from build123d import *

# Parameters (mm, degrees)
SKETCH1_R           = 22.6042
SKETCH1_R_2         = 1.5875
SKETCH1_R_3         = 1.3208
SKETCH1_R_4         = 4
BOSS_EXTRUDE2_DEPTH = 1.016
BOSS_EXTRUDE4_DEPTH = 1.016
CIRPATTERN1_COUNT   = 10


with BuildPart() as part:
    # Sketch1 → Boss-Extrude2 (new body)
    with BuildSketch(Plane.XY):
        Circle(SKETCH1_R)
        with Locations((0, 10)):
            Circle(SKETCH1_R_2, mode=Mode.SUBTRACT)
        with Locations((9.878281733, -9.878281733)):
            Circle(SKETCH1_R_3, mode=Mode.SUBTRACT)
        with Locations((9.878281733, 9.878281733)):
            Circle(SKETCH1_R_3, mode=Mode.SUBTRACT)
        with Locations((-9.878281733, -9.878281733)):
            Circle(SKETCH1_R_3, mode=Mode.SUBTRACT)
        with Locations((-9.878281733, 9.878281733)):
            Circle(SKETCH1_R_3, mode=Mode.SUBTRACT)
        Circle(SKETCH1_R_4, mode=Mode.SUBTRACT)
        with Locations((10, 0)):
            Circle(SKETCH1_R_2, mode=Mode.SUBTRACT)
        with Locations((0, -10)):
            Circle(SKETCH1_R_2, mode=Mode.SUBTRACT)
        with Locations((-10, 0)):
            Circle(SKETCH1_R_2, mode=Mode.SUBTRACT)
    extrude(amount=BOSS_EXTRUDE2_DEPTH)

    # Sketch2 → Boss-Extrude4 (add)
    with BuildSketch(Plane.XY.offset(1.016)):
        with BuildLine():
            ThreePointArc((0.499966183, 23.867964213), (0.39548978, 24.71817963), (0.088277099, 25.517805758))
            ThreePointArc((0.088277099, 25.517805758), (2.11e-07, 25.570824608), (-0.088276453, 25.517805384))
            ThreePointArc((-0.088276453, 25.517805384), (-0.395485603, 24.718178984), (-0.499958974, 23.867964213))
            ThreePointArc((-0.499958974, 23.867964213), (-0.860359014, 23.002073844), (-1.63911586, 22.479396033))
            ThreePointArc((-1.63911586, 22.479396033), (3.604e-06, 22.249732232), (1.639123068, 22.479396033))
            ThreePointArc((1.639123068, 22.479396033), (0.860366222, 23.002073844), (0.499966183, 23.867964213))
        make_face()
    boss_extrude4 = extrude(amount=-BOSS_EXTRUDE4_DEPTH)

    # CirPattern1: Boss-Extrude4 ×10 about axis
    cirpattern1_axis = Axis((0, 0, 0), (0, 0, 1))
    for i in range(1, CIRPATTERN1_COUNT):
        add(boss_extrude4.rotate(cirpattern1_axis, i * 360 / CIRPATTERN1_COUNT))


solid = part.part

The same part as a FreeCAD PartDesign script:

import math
import FreeCAD as App
import Part
import Sketcher

V = App.Vector
Q = App.Units.Quantity

doc = App.newDocument("Part")
body = doc.addObject("PartDesign::Body", "Body")

# Sketch on XY plane
sketch1 = body.newObject("Sketcher::SketchObject", "Sketch")
sketch1.AttachmentSupport = (doc.getObject("XY_Plane"), [""])
sketch1.MapMode = "FlatFace"
sketch1.addGeometry(Part.Circle(V(0, 0, 0), V(0, 0, 1), 22.6), False)
sketch1.addGeometry(Part.Circle(V(-9.9, -9.9, 0), V(0, 0, 1), 1.3), False)
sketch1.addGeometry(Part.Circle(V(0, -10, 0), V(0, 0, 1), 1.6), False)
sketch1.addGeometry(Part.Circle(V(-10, 0, 0), V(0, 0, 1), 1.6), False)
sketch1.addGeometry(Part.Circle(V(0, 0, 0), V(0, 0, 1), 4), False)
sketch1.addGeometry(Part.Circle(V(9.9, -9.9, 0), V(0, 0, 1), 1.3), False)
sketch1.addGeometry(Part.Circle(V(10, 0, 0), V(0, 0, 1), 1.6), False)
sketch1.addGeometry(Part.Circle(V(-9.9, 9.9, 0), V(0, 0, 1), 1.3), False)
sketch1.addGeometry(Part.Circle(V(0, 10, 0), V(0, 0, 1), 1.6), False)
sketch1.addGeometry(Part.Circle(V(9.9, 9.9, 0), V(0, 0, 1), 1.3), False)
sketch1.addConstraint(Sketcher.Constraint("Coincident", 0, 3, -1, 1))
sketch1.addConstraint(Sketcher.Constraint("Coincident", 4, 3, -1, 1))
sketch1.addConstraint(Sketcher.Constraint("Equal", 2, 3))
sketch1.addConstraint(Sketcher.Constraint("Equal", 1, 5))
sketch1.addConstraint(Sketcher.Constraint("Equal", 3, 6))
sketch1.addConstraint(Sketcher.Constraint("Equal", 5, 7))
sketch1.addConstraint(Sketcher.Constraint("Equal", 6, 8))
sketch1.addConstraint(Sketcher.Constraint("Equal", 7, 9))
sketch1.addConstraint(Sketcher.Constraint("Symmetric", 3, 3, 6, 3, -1, 1))
sketch1.addConstraint(Sketcher.Constraint("Symmetric", 5, 3, 7, 3, -1, 1))
sketch1.addConstraint(Sketcher.Constraint("Symmetric", 2, 3, 8, 3, -1, 1))
sketch1.addConstraint(Sketcher.Constraint("Symmetric", 1, 3, 9, 3, -1, 1))
sketch1.addConstraint(Sketcher.Constraint("Symmetric", 1, 3, 5, 3, -2))
sketch1.addConstraint(Sketcher.Constraint("PointOnObject", 2, 3, -2))
sketch1.addConstraint(Sketcher.Constraint("PointOnObject", 3, 3, -1))
sketch1.addConstraint(Sketcher.Constraint("Diameter", 1, Q("0.104 in")))
sketch1.addConstraint(Sketcher.Constraint("Diameter", 2, Q("0.125 in")))
sketch1.addConstraint(Sketcher.Constraint("Diameter", 0, Q("45.2084 mm")))
sketch1.addConstraint(Sketcher.Constraint("Diameter", 4, Q("8 mm")))
sketch1.addConstraint(Sketcher.Constraint("DistanceY", 2, 3, -1, 1, Q("10 mm")))
sketch1.addConstraint(Sketcher.Constraint("DistanceX", 3, 3, -1, 1, Q("10 mm")))
sketch1.addConstraint(Sketcher.Constraint("DistanceX", 1, 3, -1, 1, Q("9.878282 mm")))
sketch1.addConstraint(Sketcher.Constraint("DistanceY", 1, 3, -1, 1, Q("9.878282 mm")))
pad1 = body.newObject("PartDesign::Pad", "Pad")
pad1.Profile = sketch1
pad1.Length = Q("0.04 in")

# Sketch on XY plane
sketch2 = body.newObject("Sketcher::SketchObject", "Sketch001")
sketch2.AttachmentSupport = (doc.getObject("XY_Plane"), [""])
sketch2.MapMode = "FlatFace"
sketch2.AttachmentOffset = App.Placement(V(0, 0, 0.04 * 25.4), App.Rotation())
sketch2.addGeometry(Part.ArcOfCircle(Part.Circle(V(-3.011743, 23.867964, 0), V(0, 0, 1), 3.51171), math.radians(0), math.radians(28.022061)), False)
sketch2.addGeometry(Part.ArcOfCircle(Part.Circle(V(0, 25.470825, 0), V(0, 0, 1), 0.1), math.radians(28.022062), math.radians(151.978181)), False)
sketch2.addGeometry(Part.ArcOfCircle(Part.Circle(V(3.011754, 23.867975, 0), V(0, 0, 1), 3.511713), math.radians(151.978182), math.radians(180.00018)), False)
sketch2.addGeometry(Part.ArcOfCircle(Part.Circle(V(-2.117147, 24.033121, 0), V(0, 0, 1), 1.6256), math.radians(-72.898538), math.radians(-5.831164)), False)
sketch2.addGeometry(Part.ArcOfCircle(Part.Circle(V(0.000004, 28.213794, 0), V(0, 0, 1), 5.964062), math.radians(-105.952048), math.radians(-74.047952)), False)
sketch2.addGeometry(Part.ArcOfCircle(Part.Circle(V(2.117155, 24.033121, 0), V(0, 0, 1), 1.6256), math.radians(-174.168836), math.radians(-107.101462)), False)
sketch2.addConstraint(Sketcher.Constraint("Coincident", 0, 2, 1, 1))
sketch2.addConstraint(Sketcher.Constraint("Coincident", 1, 2, 2, 1))
sketch2.addConstraint(Sketcher.Constraint("Coincident", 2, 2, 3, 2))
sketch2.addConstraint(Sketcher.Constraint("Coincident", 3, 1, 4, 1))
sketch2.addConstraint(Sketcher.Constraint("Coincident", 4, 2, 5, 2))
sketch2.addConstraint(Sketcher.Constraint("Coincident", 5, 1, 0, 1))
sketch2.addConstraint(Sketcher.Constraint("PointOnObject", 1, 3, -2))
sketch2.addConstraint(Sketcher.Constraint("Radius", 3, Q("0.064 in")))
sketch2.addConstraint(Sketcher.Constraint("Radius", 5, Q("0.064 in")))
sketch2.addConstraint(Sketcher.Constraint("Radius", 1, Q("0.1 mm")))
sketch2.addConstraint(Sketcher.Constraint("Radius", 0, Q("3.51171 mm")))
sketch2.addConstraint(Sketcher.Constraint("Radius", 4, Q("5.964062 mm")))
sketch2.addConstraint(Sketcher.Constraint("Radius", 2, Q("3.511713 mm")))
sketch2.addConstraint(Sketcher.Constraint("DistanceX", 3, 3, 2, 3, Q("5.128902 mm")))
sketch2.addConstraint(Sketcher.Constraint("DistanceX", 5, 3, 2, 3, Q("0.8946 mm")))
sketch2.addConstraint(Sketcher.Constraint("DistanceX", 0, 3, 5, 3, Q("5.128898 mm")))
sketch2.addConstraint(Sketcher.Constraint("DistanceY", -1, 1, 3, 3, Q("24.033121 mm")))
sketch2.addConstraint(Sketcher.Constraint("DistanceY", -1, 1, 5, 3, Q("24.033121 mm")))
sketch2.addConstraint(Sketcher.Constraint("DistanceX", 2, 2, -1, 1, Q("0.499959 mm")))
sketch2.addConstraint(Sketcher.Constraint("DistanceY", 1, 3, 4, 3, Q("2.742969 mm")))
sketch2.addConstraint(Sketcher.Constraint("DistanceX", 3, 3, 4, 3, Q("2.117151 mm")))
sketch2.addConstraint(Sketcher.Constraint("DistanceY", 1, 3, 0, 2, Q("0.046981 mm")))
sketch2.addConstraint(Sketcher.Constraint("DistanceY", 1, 3, 1, 2, Q("0.046981 mm")))
sketch2.addConstraint(Sketcher.Constraint("DistanceY", 2, 2, 1, 3, Q("1.60286 mm")))
pad2 = body.newObject("PartDesign::Pad", "Pad001")
pad2.Profile = sketch2
pad2.Length = Q("0.04 in")
pad2.Reversed = True
doc.recompute()

polarpattern = body.newObject("PartDesign::PolarPattern", "PolarPattern")
polarpattern.Originals = [pad2]
polarpattern.Axis = (doc.getObject("Z_Axis"), [""])
polarpattern.Angle = 360
polarpattern.Occurrences = 10
body.Tip = polarpattern

doc.recompute()
